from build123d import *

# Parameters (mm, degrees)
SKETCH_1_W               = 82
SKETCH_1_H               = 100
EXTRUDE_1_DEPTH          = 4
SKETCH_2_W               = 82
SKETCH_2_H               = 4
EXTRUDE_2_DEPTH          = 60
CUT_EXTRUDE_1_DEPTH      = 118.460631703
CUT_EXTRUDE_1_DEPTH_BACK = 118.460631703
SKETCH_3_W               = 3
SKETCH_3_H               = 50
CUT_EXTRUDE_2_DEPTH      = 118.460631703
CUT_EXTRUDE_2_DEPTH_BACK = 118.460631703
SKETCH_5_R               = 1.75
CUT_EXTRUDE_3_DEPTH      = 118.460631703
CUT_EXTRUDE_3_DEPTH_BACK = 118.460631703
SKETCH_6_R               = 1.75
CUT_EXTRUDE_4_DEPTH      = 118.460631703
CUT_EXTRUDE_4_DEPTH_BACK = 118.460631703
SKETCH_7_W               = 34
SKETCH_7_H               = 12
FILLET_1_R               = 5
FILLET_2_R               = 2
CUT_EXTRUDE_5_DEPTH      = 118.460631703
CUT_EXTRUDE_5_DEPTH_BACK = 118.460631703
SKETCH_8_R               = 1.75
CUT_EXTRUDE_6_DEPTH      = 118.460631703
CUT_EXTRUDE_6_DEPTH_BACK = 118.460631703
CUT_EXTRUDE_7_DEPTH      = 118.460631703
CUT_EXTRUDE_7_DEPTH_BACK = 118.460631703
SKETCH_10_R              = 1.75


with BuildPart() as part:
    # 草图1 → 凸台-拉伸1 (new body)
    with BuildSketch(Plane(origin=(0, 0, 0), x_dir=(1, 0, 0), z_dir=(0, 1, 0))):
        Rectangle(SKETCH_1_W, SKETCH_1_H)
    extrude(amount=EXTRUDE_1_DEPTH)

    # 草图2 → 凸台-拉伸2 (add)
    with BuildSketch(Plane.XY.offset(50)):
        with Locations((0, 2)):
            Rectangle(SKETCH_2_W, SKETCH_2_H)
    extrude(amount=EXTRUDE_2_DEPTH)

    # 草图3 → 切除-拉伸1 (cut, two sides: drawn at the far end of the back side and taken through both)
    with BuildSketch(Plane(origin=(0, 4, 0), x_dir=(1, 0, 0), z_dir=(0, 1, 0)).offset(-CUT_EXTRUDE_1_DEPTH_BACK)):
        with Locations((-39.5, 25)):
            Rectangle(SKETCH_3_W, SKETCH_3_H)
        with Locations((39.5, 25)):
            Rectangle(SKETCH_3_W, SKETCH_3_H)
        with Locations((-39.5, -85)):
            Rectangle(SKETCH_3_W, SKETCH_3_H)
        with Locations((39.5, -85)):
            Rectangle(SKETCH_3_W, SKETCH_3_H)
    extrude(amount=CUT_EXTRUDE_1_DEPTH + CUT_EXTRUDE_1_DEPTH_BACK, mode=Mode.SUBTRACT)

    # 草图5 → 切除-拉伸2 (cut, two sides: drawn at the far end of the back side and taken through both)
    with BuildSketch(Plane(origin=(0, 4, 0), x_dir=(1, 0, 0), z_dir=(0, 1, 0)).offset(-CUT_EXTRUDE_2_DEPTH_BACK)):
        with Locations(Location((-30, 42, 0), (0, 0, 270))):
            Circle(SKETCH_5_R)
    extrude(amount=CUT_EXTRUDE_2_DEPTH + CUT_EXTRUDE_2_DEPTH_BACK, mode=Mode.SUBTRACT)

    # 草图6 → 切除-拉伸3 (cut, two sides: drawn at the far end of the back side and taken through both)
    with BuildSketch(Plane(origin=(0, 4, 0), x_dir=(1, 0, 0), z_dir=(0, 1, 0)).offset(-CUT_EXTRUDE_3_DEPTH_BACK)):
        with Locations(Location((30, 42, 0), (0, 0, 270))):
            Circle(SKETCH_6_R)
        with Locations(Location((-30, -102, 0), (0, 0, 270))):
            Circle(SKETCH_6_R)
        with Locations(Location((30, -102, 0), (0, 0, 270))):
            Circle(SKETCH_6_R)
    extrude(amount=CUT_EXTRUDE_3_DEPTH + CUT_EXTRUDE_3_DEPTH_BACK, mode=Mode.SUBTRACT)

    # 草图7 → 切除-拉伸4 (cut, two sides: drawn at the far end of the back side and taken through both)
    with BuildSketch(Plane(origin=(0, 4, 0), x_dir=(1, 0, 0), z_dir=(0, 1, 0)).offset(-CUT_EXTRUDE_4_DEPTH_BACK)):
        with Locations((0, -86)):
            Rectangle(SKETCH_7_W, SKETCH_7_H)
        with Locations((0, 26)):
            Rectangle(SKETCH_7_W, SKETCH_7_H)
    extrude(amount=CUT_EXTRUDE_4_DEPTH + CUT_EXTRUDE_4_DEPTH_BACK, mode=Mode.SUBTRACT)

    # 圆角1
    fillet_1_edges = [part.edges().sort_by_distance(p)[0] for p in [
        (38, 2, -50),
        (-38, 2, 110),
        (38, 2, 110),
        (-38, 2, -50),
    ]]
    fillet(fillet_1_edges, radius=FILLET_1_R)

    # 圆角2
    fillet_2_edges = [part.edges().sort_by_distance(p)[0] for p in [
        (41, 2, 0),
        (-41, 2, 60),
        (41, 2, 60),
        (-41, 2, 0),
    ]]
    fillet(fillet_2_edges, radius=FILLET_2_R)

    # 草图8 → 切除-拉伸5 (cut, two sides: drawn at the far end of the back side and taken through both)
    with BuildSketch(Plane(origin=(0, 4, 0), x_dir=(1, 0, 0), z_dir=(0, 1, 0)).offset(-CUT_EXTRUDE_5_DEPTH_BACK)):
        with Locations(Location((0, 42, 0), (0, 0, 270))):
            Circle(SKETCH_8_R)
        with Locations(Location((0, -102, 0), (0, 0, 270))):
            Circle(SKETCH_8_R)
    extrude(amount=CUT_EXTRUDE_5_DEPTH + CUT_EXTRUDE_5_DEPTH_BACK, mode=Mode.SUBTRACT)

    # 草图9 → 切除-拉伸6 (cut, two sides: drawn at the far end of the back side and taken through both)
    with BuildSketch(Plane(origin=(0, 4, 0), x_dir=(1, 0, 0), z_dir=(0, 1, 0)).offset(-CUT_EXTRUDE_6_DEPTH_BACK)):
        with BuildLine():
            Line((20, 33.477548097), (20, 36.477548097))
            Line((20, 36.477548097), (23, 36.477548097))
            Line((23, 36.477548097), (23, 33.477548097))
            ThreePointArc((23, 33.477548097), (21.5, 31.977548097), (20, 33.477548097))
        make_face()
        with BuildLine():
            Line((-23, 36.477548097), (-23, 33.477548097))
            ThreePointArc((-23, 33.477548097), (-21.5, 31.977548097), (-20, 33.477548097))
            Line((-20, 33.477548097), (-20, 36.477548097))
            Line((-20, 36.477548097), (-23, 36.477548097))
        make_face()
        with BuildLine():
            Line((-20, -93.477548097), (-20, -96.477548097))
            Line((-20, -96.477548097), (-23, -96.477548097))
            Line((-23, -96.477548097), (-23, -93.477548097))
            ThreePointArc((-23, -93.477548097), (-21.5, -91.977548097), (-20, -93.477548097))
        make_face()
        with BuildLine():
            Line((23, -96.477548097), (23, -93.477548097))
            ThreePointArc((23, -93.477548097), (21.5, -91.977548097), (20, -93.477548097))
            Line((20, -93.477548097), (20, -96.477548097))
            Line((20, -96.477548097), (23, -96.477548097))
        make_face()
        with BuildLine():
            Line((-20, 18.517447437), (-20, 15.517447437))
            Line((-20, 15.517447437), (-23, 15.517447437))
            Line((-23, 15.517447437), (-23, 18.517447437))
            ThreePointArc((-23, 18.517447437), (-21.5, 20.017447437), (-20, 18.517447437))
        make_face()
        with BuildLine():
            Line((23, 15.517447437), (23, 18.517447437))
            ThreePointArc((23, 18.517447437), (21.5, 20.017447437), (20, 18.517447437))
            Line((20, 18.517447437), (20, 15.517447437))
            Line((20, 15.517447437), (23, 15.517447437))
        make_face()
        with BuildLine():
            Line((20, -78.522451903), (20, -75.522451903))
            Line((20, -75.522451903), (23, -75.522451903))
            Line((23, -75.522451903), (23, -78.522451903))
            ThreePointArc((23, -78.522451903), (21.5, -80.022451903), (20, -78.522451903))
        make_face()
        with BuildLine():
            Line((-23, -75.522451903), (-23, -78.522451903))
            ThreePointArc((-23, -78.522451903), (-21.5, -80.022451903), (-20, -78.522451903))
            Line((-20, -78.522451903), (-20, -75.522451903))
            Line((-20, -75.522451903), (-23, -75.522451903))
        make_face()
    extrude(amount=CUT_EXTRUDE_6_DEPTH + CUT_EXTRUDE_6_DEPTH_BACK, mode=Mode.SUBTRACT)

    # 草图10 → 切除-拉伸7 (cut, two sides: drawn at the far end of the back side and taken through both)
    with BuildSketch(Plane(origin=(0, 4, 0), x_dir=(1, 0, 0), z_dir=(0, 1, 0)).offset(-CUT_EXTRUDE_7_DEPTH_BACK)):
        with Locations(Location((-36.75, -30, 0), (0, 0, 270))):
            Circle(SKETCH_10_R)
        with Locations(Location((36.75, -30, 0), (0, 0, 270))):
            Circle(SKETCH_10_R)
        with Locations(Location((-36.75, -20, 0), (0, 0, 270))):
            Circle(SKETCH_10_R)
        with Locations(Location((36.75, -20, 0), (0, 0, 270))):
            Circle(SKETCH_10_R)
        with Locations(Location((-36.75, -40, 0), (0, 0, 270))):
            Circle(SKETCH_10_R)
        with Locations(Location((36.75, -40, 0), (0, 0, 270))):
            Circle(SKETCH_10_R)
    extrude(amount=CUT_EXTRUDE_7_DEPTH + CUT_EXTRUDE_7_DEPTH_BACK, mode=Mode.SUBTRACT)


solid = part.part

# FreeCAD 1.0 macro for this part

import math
import FreeCAD as App
import Part
import Sketcher
Q = App.Units.Quantity


def edges_at(feature, points):
    """Names of the edges that pass closest to the given points."""
    edges = feature.Shape.Edges
    near = lambda p: min(range(len(edges)), key=lambda i: edges[i].distToShape(Part.Vertex(*p))[0])
    return sorted({f"Edge{near(p) + 1}" for p in points})


def add_polygon(sketch, points):
    """Adds a closed chain of lines whose ends are joined by coincident constraints."""
    first, n = sketch.GeometryCount, len(points)
    for a, b in zip(points, points[1:] + points[:1]):
        sketch.addGeometry(Part.LineSegment(App.Vector(*a, 0), App.Vector(*b, 0)), False)
    for i in range(n):
        sketch.addConstraint(Sketcher.Constraint("Coincident", first + i, 2, first + (i + 1) % n, 1))

doc = App.newDocument("Part")
body = doc.addObject("PartDesign::Body", "Body")

# Sketch on XZ plane
sketch1 = doc.addObject("Sketcher::SketchObject", "Sketch")
body.addObject(sketch1)
sketch1.AttachmentSupport = (doc.XZ_Plane, [""])
sketch1.MapMode = "FlatFace"
add_polygon(sketch1, [(-41, -50), (-41, 50), (41, 50), (41, -50)])  # lines 0-3
sketch1.addConstraint([
    Sketcher.Constraint("Vertical", 0),
    Sketcher.Constraint("Horizontal", 1),
    Sketcher.Constraint("Vertical", 2),
    Sketcher.Constraint("Horizontal", 3),
    Sketcher.Constraint("Symmetric", 0, 2, 2, 2, -1, 1),
    Sketcher.Constraint("DistanceX", 1, 1, 1, 2, Q("82 mm")),
    Sketcher.Constraint("DistanceY", 0, 1, 0, 2, Q("100 mm")),
])
pad1 = doc.addObject("PartDesign::Pad", "Pad")
body.addObject(pad1)
pad1.Profile = sketch1
pad1.Length = 4
pad1.Reversed = True

# Sketch on XY plane
sketch2 = doc.addObject("Sketcher::SketchObject", "Sketch001")
body.addObject(sketch2)
sketch2.AttachmentSupport = (doc.XY_Plane, [""])
sketch2.MapMode = "FlatFace"
sketch2.AttachmentOffset = App.Placement(App.Vector(0, 0, 50), App.Rotation())
add_polygon(sketch2, [(-41, 4), (-41, 0), (41, 0), (41, 4)])  # lines 0-3
sketch2.addConstraint([
    Sketcher.Constraint("Vertical", 0),
    Sketcher.Constraint("Horizontal", 1),
    Sketcher.Constraint("Vertical", 2),
    Sketcher.Constraint("Horizontal", 3),
    Sketcher.Constraint("Symmetric", 0, 2, 1, 2, -1, 1),
    Sketcher.Constraint("DistanceX", 1, 1, 1, 2, Q("82 mm")),
    Sketcher.Constraint("DistanceY", 0, 2, 0, 1, Q("4 mm")),
])
pad2 = doc.addObject("PartDesign::Pad", "Pad001")
body.addObject(pad2)
pad2.Profile = sketch2
pad2.Length = 60

# Sketch on XZ plane
sketch3 = doc.addObject("Sketcher::SketchObject", "Sketch002")
body.addObject(sketch3)
sketch3.AttachmentSupport = (doc.XZ_Plane, [""])
sketch3.MapMode = "FlatFace"
sketch3.AttachmentOffset = App.Placement(App.Vector(0, 0, -4), App.Rotation())
add_polygon(sketch3, [(-41, -50), (-41, 0), (-38, 0), (-38, -50)])  # lines 0-3
add_polygon(sketch3, [(38, -50), (38, 0), (41, 0), (41, -50)])  # lines 4-7
add_polygon(sketch3, [(-41, 60), (-41, 110), (-38, 110), (-38, 60)])  # lines 8-11
add_polygon(sketch3, [(38, 60), (38, 110), (41, 110), (41, 60)])  # lines 12-15
sketch3.addConstraint([
    Sketcher.Constraint("Vertical", 0),
    Sketcher.Constraint("Horizontal", 1),
    Sketcher.Constraint("Vertical", 2),
    Sketcher.Constraint("Horizontal", 3),
    Sketcher.Constraint("Vertical", 4),
    Sketcher.Constraint("Horizontal", 5),
    Sketcher.Constraint("Vertical", 6),
    Sketcher.Constraint("Horizontal", 7),
    Sketcher.Constraint("Vertical", 8),
    Sketcher.Constraint("Horizontal", 9),
    Sketcher.Constraint("Vertical", 10),
    Sketcher.Constraint("Horizontal", 11),
    Sketcher.Constraint("Vertical", 12),
    Sketcher.Constraint("Horizontal", 13),
    Sketcher.Constraint("Vertical", 14),
    Sketcher.Constraint("Horizontal", 15),
    Sketcher.Constraint("Symmetric", 1, 2, 4, 2, -1, 1),
    Sketcher.Constraint("Symmetric", 0, 2, 5, 2, -2),
    Sketcher.Constraint("Symmetric", 9, 2, 12, 2, -2),
    Sketcher.Constraint("Symmetric", 11, 2, 14, 2, -2),
    Sketcher.Constraint("Horizontal", 3, 2, 6, 2),
    Sketcher.Constraint("Vertical", 3, 2, 8, 2),
    Sketcher.Constraint("Vertical", 2, 2, 9, 2),
    Sketcher.Constraint("Equal", 6, 8),
    Sketcher.Constraint("DistanceX", 1, 1, 1, 2, Q("3 mm")),
    Sketcher.Constraint("DistanceY", 0, 1, 0, 2, Q("50 mm")),
    Sketcher.Constraint("DistanceX", 0, 2, -1, 1, Q("41 mm")),
    Sketcher.Constraint("DistanceY", -1, 1, 8, 2, Q("110 mm")),
])
pocket1 = doc.addObject("PartDesign::Pocket", "Pocket")
body.addObject(pocket1)
pocket1.Profile = sketch3
pocket1.Type = "ThroughAll"
pocket1.Midplane = True

# Sketch on XZ plane
sketch4 = doc.addObject("Sketcher::SketchObject", "Sketch003")
body.addObject(sketch4)
sketch4.AttachmentSupport = (doc.XZ_Plane, [""])
sketch4.MapMode = "FlatFace"
sketch4.AttachmentOffset = App.Placement(App.Vector(0, 0, -4), App.Rotation())
sketch4.addGeometry(Part.Circle(App.Vector(-30, -42, 0), App.Vector(0, 0, 1), 1.8), False)
sketch4.addConstraint([
    Sketcher.Constraint("Diameter", 0, Q("3.5 mm")),
    Sketcher.Constraint("DistanceX", 0, 3, -1, 1, Q("30 mm")),
    Sketcher.Constraint("DistanceY", 0, 3, -1, 1, Q("42 mm")),
])
pocket2 = doc.addObject("PartDesign::Pocket", "Pocket001")
body.addObject(pocket2)
pocket2.Profile = sketch4
pocket2.Type = "ThroughAll"
pocket2.Midplane = True

# Sketch on XZ plane
sketch5 = doc.addObject("Sketcher::SketchObject", "Sketch004")
body.addObject(sketch5)
sketch5.AttachmentSupport = (doc.XZ_Plane, [""])
sketch5.MapMode = "FlatFace"
sketch5.AttachmentOffset = App.Placement(App.Vector(0, 0, -4), App.Rotation())
sketch5.addGeometry([
    Part.Circle(App.Vector(30, -42, 0), App.Vector(0, 0, 1), 1.8),
    Part.Circle(App.Vector(-30, 102, 0), App.Vector(0, 0, 1), 1.8),
    Part.Circle(App.Vector(30, 102, 0), App.Vector(0, 0, 1), 1.8),
], False)
sketch5.addConstraint([
    Sketcher.Constraint("Equal", 0, 1),
    Sketcher.Constraint("Equal", 1, 2),
    Sketcher.Constraint("Symmetric", 1, 3, 2, 3, -2),
    Sketcher.Constraint("Vertical", 0, 3, 2, 3),
    Sketcher.Constraint("Diameter", 0, Q("3.5 mm")),
    Sketcher.Constraint("DistanceX", -1, 1, 0, 3, Q("30 mm")),
    Sketcher.Constraint("DistanceY", 0, 3, -1, 1, Q("42 mm")),
    Sketcher.Constraint("DistanceY", -1, 1, 1, 3, Q("102 mm")),
])
pocket3 = doc.addObject("PartDesign::Pocket", "Pocket002")
body.addObject(pocket3)
pocket3.Profile = sketch5
pocket3.Type = "ThroughAll"
pocket3.Midplane = True

# Sketch on XZ plane
sketch6 = doc.addObject("Sketcher::SketchObject", "Sketch005")
body.addObject(sketch6)
sketch6.AttachmentSupport = (doc.XZ_Plane, [""])
sketch6.MapMode = "FlatFace"
sketch6.AttachmentOffset = App.Placement(App.Vector(0, 0, -4), App.Rotation())
add_polygon(sketch6, [(-17, 80), (-17, 92), (17, 92), (17, 80)])  # lines 0-3
add_polygon(sketch6, [(-17, -32), (-17, -20), (17, -20), (17, -32)])  # lines 4-7
sketch6.addConstraint([
    Sketcher.Constraint("Vertical", 0),
    Sketcher.Constraint("Horizontal", 1),
    Sketcher.Constraint("Vertical", 2),
    Sketcher.Constraint("Horizontal", 3),
    Sketcher.Constraint("Vertical", 4),
    Sketcher.Constraint("Horizontal", 5),
    Sketcher.Constraint("Vertical", 6),
    Sketcher.Constraint("Horizontal", 7),
    Sketcher.Constraint("Vertical", 3, 2, 4, 2),
    Sketcher.Constraint("Vertical", 2, 2, 5, 2),
    Sketcher.Constraint("Equal", 2, 4),
    Sketcher.Constraint("DistanceX", 1, 1, 1, 2, Q("34 mm")),
    Sketcher.Constraint("DistanceY", 0, 1, 0, 2, Q("12 mm")),
    Sketcher.Constraint("DistanceX", 0, 2, -1, 1, Q("17 mm")),
    Sketcher.Constraint("DistanceY", -1, 1, 0, 2, Q("92 mm")),
    Sketcher.Constraint("DistanceY", 4, 2, -1, 1, Q("20 mm")),
])
pocket4 = doc.addObject("PartDesign::Pocket", "Pocket003")
body.addObject(pocket4)
pocket4.Profile = sketch6
pocket4.Type = "ThroughAll"
pocket4.Midplane = True
doc.recompute()

fillet = doc.addObject("PartDesign::Fillet", "Fillet")
body.addObject(fillet)
fillet.Base = (pocket4, edges_at(pocket4, [
    (38, 2, -50),
    (-38, 2, 110),
    (38, 2, 110),
    (-38, 2, -50),
]))
fillet.Radius = 5
doc.recompute()

fillet2 = doc.addObject("PartDesign::Fillet", "Fillet001")
body.addObject(fillet2)
fillet2.Base = (fillet, edges_at(fillet, [
    (41, 2, 0),
    (-41, 2, 60),
    (41, 2, 60),
    (-41, 2, 0),
]))
fillet2.Radius = 2

# Sketch on XZ plane
sketch7 = doc.addObject("Sketcher::SketchObject", "Sketch006")
body.addObject(sketch7)
sketch7.AttachmentSupport = (doc.XZ_Plane, [""])
sketch7.MapMode = "FlatFace"
sketch7.AttachmentOffset = App.Placement(App.Vector(0, 0, -4), App.Rotation())
sketch7.addGeometry([
    Part.Circle(App.Vector(0, -42, 0), App.Vector(0, 0, 1), 1.8),
    Part.Circle(App.Vector(0, 102, 0), App.Vector(0, 0, 1), 1.8),
], False)
sketch7.addConstraint([
    Sketcher.Constraint("Equal", 0, 1),
    Sketcher.Constraint("PointOnObject", 0, 3, -2),
    Sketcher.Constraint("PointOnObject", 1, 3, -2),
    Sketcher.Constraint("Diameter", 0, Q("3.5 mm")),
    Sketcher.Constraint("DistanceY", 0, 3, -1, 1, Q("42 mm")),
    Sketcher.Constraint("DistanceY", -1, 1, 1, 3, Q("102 mm")),
])
pocket5 = doc.addObject("PartDesign::Pocket", "Pocket004")
body.addObject(pocket5)
pocket5.Profile = sketch7
pocket5.Type = "ThroughAll"
pocket5.Midplane = True

# Sketch on XZ plane
sketch8 = doc.addObject("Sketcher::SketchObject", "Sketch007")
body.addObject(sketch8)
sketch8.AttachmentSupport = (doc.XZ_Plane, [""])
sketch8.MapMode = "FlatFace"
sketch8.AttachmentOffset = App.Placement(App.Vector(0, 0, -4), App.Rotation())
sketch8.addGeometry([
    Part.LineSegment(App.Vector(20, -36.5, 0), App.Vector(20, -33.5, 0)),  # 0
    Part.ArcOfCircle(Part.Circle(App.Vector(21.5, -33.5, 0), App.Vector(0, 0, 1), 1.5), math.radians(0), math.radians(180)),  # 1
    Part.LineSegment(App.Vector(23, -33.5, 0), App.Vector(23, -36.5, 0)),  # 2
    Part.LineSegment(App.Vector(23, -36.5, 0), App.Vector(20, -36.5, 0)),  # 3
    Part.LineSegment(App.Vector(-23, -36.5, 0), App.Vector(-23, -33.5, 0)),  # 4
    Part.ArcOfCircle(Part.Circle(App.Vector(-21.5, -33.5, 0), App.Vector(0, 0, 1), 1.5), math.radians(0), math.radians(180)),  # 5
    Part.LineSegment(App.Vector(-20, -33.5, 0), App.Vector(-20, -36.5, 0)),  # 6
    Part.LineSegment(App.Vector(-20, -36.5, 0), App.Vector(-23, -36.5, 0)),  # 7
    Part.LineSegment(App.Vector(-20, 96.5, 0), App.Vector(-20, 93.5, 0)),  # 8
    Part.ArcOfCircle(Part.Circle(App.Vector(-21.5, 93.5, 0), App.Vector(0, 0, 1), 1.5), math.radians(180), math.radians(360)),  # 9
    Part.LineSegment(App.Vector(-23, 93.5, 0), App.Vector(-23, 96.5, 0)),  # 10
    Part.LineSegment(App.Vector(-23, 96.5, 0), App.Vector(-20, 96.5, 0)),  # 11
    Part.LineSegment(App.Vector(23, 96.5, 0), App.Vector(23, 93.5, 0)),  # 12
    Part.ArcOfCircle(Part.Circle(App.Vector(21.5, 93.5, 0), App.Vector(0, 0, 1), 1.5), math.radians(180), math.radians(360)),  # 13
    Part.LineSegment(App.Vector(20, 93.5, 0), App.Vector(20, 96.5, 0)),  # 14
    Part.LineSegment(App.Vector(20, 96.5, 0), App.Vector(23, 96.5, 0)),  # 15
    Part.LineSegment(App.Vector(-20, -15.5, 0), App.Vector(-20, -18.5, 0)),  # 16
    Part.ArcOfCircle(Part.Circle(App.Vector(-21.5, -18.5, 0), App.Vector(0, 0, 1), 1.5), math.radians(180), math.radians(360)),  # 17
    Part.LineSegment(App.Vector(-23, -18.5, 0), App.Vector(-23, -15.5, 0)),  # 18
    Part.LineSegment(App.Vector(-23, -15.5, 0), App.Vector(-20, -15.5, 0)),  # 19
    Part.LineSegment(App.Vector(23, -15.5, 0), App.Vector(23, -18.5, 0)),  # 20
    Part.ArcOfCircle(Part.Circle(App.Vector(21.5, -18.5, 0), App.Vector(0, 0, 1), 1.5), math.radians(180), math.radians(360)),  # 21
    Part.LineSegment(App.Vector(20, -18.5, 0), App.Vector(20, -15.5, 0)),  # 22
    Part.LineSegment(App.Vector(20, -15.5, 0), App.Vector(23, -15.5, 0)),  # 23
    Part.LineSegment(App.Vector(20, 75.5, 0), App.Vector(20, 78.5, 0)),  # 24
    Part.ArcOfCircle(Part.Circle(App.Vector(21.5, 78.5, 0), App.Vector(0, 0, 1), 1.5), math.radians(0), math.radians(180)),  # 25
    Part.LineSegment(App.Vector(23, 78.5, 0), App.Vector(23, 75.5, 0)),  # 26
    Part.LineSegment(App.Vector(23, 75.5, 0), App.Vector(20, 75.5, 0)),  # 27
    Part.LineSegment(App.Vector(-23, 75.5, 0), App.Vector(-23, 78.5, 0)),  # 28
    Part.ArcOfCircle(Part.Circle(App.Vector(-21.5, 78.5, 0), App.Vector(0, 0, 1), 1.5), math.radians(0), math.radians(180)),  # 29
    Part.LineSegment(App.Vector(-20, 78.5, 0), App.Vector(-20, 75.5, 0)),  # 30
    Part.LineSegment(App.Vector(-20, 75.5, 0), App.Vector(-23, 75.5, 0)),  # 31
], False)
sketch8.addConstraint([
    Sketcher.Constraint("Tangent", 0, 2, 1, 2),
    Sketcher.Constraint("Tangent", 1, 1, 2, 1),
    Sketcher.Constraint("Coincident", 2, 2, 3, 1),
    Sketcher.Constraint("Coincident", 3, 2, 0, 1),
    Sketcher.Constraint("Tangent", 4, 2, 5, 2),
    Sketcher.Constraint("Tangent", 5, 1, 6, 1),
    Sketcher.Constraint("Coincident", 6, 2, 7, 1),
    Sketcher.Constraint("Coincident", 7, 2, 4, 1),
    Sketcher.Constraint("Tangent", 8, 2, 9, 2),
    Sketcher.Constraint("Tangent", 9, 1, 10, 1),
    Sketcher.Constraint("Coincident", 10, 2, 11, 1),
    Sketcher.Constraint("Coincident", 11, 2, 8, 1),
    Sketcher.Constraint("Tangent", 12, 2, 13, 2),
    Sketcher.Constraint("Tangent", 13, 1, 14, 1),
    Sketcher.Constraint("Coincident", 14, 2, 15, 1),
    Sketcher.Constraint("Coincident", 15, 2, 12, 1),
    Sketcher.Constraint("Tangent", 16, 2, 17, 2),
    Sketcher.Constraint("Tangent", 17, 1, 18, 1),
    Sketcher.Constraint("Coincident", 18, 2, 19, 1),
    Sketcher.Constraint("Coincident", 19, 2, 16, 1),
    Sketcher.Constraint("Tangent", 20, 2, 21, 2),
    Sketcher.Constraint("Tangent", 21, 1, 22, 1),
    Sketcher.Constraint("Coincident", 22, 2, 23, 1),
    Sketcher.Constraint("Coincident", 23, 2, 20, 1),
    Sketcher.Constraint("Tangent", 24, 2, 25, 2),
    Sketcher.Constraint("Tangent", 25, 1, 26, 1),
    Sketcher.Constraint("Coincident", 26, 2, 27, 1),
    Sketcher.Constraint("Coincident", 27, 2, 24, 1),
    Sketcher.Constraint("Tangent", 28, 2, 29, 2),
    Sketcher.Constraint("Tangent", 29, 1, 30, 1),
    Sketcher.Constraint("Coincident", 30, 2, 31, 1),
    Sketcher.Constraint("Coincident", 31, 2, 28, 1),
    Sketcher.Constraint("Vertical", 0),
    Sketcher.Constraint("Vertical", 2),
    Sketcher.Constraint("Horizontal", 3),
    Sketcher.Constraint("Vertical", 4),
    Sketcher.Constraint("Vertical", 6),
    Sketcher.Constraint("Horizontal", 7),
    Sketcher.Constraint("Vertical", 8),
    Sketcher.Constraint("Vertical", 10),
    Sketcher.Constraint("Horizontal", 11),
    Sketcher.Constraint("Vertical", 12),
    Sketcher.Constraint("Vertical", 14),
    Sketcher.Constraint("Horizontal", 15),
    Sketcher.Constraint("Vertical", 16),
    Sketcher.Constraint("Vertical", 18),
    Sketcher.Constraint("Horizontal", 19),
    Sketcher.Constraint("Vertical", 20),
    Sketcher.Constraint("Vertical", 22),
    Sketcher.Constraint("Horizontal", 23),
    Sketcher.Constraint("Vertical", 24),
    Sketcher.Constraint("Vertical", 26),
    Sketcher.Constraint("Horizontal", 27),
    Sketcher.Constraint("Vertical", 28),
    Sketcher.Constraint("Vertical", 30),
    Sketcher.Constraint("Horizontal", 31),
    Sketcher.Constraint("Equal", 1, 5),
    Sketcher.Constraint("Equal", 5, 9),
    Sketcher.Constraint("Equal", 9, 13),
    Sketcher.Constraint("Equal", 13, 17),
    Sketcher.Constraint("Equal", 17, 21),
    Sketcher.Constraint("Equal", 21, 25),
    Sketcher.Constraint("Equal", 25, 29),
    Sketcher.Constraint("Symmetric", 1, 3, 5, 3, -2),
    Sketcher.Constraint("Symmetric", 9, 3, 13, 3, -2),
    Sketcher.Constraint("Symmetric", 17, 3, 21, 3, -2),
    Sketcher.Constraint("Symmetric", 25, 3, 29, 3, -2),
    Sketcher.Constraint("Horizontal", 3, 2, 6, 2),
    Sketcher.Constraint("Horizontal", 11, 2, 14, 2),
    Sketcher.Constraint("Horizontal", 19, 2, 22, 2),
    Sketcher.Constraint("Horizontal", 27, 2, 30, 2),
    Sketcher.Constraint("Vertical", 5, 3, 9, 3),
    Sketcher.Constraint("Vertical", 9, 3, 17, 3),
    Sketcher.Constraint("Vertical", 21, 3, 25, 3),
    Sketcher.Constraint("Equal", 31, 0),
    Sketcher.Constraint("Equal", 6, 8),
    Sketcher.Constraint("Equal", 14, 16),
    Sketcher.Constraint("Equal", 22, 24),
    Sketcher.Constraint("Radius", 1, Q("1.5 mm")),
    Sketcher.Constraint("DistanceX", -1, 1, 0, 2, Q("20 mm")),
    Sketcher.Constraint("DistanceY", 1, 3, 25, 3, Q("112 mm")),
    Sketcher.Constraint("DistanceY", 5, 3, 17, 3, Q("14.960101 mm")),
    Sketcher.Constraint("DistanceY", 1, 3, -1, 1, Q("33.477548 mm")),
    Sketcher.Constraint("DistanceY", -1, 1, 9, 3, Q("93.477548 mm")),
])
pocket6 = doc.addObject("PartDesign::Pocket", "Pocket005")
body.addObject(pocket6)
pocket6.Profile = sketch8
pocket6.Type = "ThroughAll"
pocket6.Midplane = True

# Sketch on XZ plane
sketch9 = doc.addObject("Sketcher::SketchObject", "Sketch008")
body.addObject(sketch9)
sketch9.AttachmentSupport = (doc.XZ_Plane, [""])
sketch9.MapMode = "FlatFace"
sketch9.AttachmentOffset = App.Placement(App.Vector(0, 0, -4), App.Rotation())
sketch9.addGeometry([
    Part.Circle(App.Vector(-36.8, 30, 0), App.Vector(0, 0, 1), 1.8),  # 0
    Part.Circle(App.Vector(36.8, 30, 0), App.Vector(0, 0, 1), 1.8),  # 1
    Part.Circle(App.Vector(-36.8, 20, 0), App.Vector(0, 0, 1), 1.8),  # 2
    Part.Circle(App.Vector(36.8, 20, 0), App.Vector(0, 0, 1), 1.8),  # 3
    Part.Circle(App.Vector(-36.8, 40, 0), App.Vector(0, 0, 1), 1.8),  # 4
    Part.Circle(App.Vector(36.8, 40, 0), App.Vector(0, 0, 1), 1.8),  # 5
], False)
sketch9.addConstraint([
    Sketcher.Constraint("Equal", 0, 1),
    Sketcher.Constraint("Equal", 1, 2),
    Sketcher.Constraint("Equal", 2, 3),
    Sketcher.Constraint("Equal", 3, 4),
    Sketcher.Constraint("Equal", 4, 5),
    Sketcher.Constraint("Symmetric", 0, 3, 1, 3, -2),
    Sketcher.Constraint("Symmetric", 2, 3, 3, 3, -2),
    Sketcher.Constraint("Symmetric", 4, 3, 5, 3, -2),
    Sketcher.Constraint("Vertical", 0, 3, 2, 3),
    Sketcher.Constraint("Vertical", 2, 3, 4, 3),
    Sketcher.Constraint("Diameter", 0, Q("3.5 mm")),
    Sketcher.Constraint("DistanceY", -1, 1, 0, 3, Q("30 mm")),
    Sketcher.Constraint("DistanceY", -1, 1, 2, 3, Q("20 mm")),
    Sketcher.Constraint("DistanceY", -1, 1, 4, 3, Q("40 mm")),
    Sketcher.Constraint("DistanceX", 0, 3, 1, 3, Q("73.5 mm")),
])
pocket7 = doc.addObject("PartDesign::Pocket", "Pocket006")
body.addObject(pocket7)
pocket7.Profile = sketch9
pocket7.Type = "ThroughAll"
pocket7.Midplane = True

doc.recompute()
